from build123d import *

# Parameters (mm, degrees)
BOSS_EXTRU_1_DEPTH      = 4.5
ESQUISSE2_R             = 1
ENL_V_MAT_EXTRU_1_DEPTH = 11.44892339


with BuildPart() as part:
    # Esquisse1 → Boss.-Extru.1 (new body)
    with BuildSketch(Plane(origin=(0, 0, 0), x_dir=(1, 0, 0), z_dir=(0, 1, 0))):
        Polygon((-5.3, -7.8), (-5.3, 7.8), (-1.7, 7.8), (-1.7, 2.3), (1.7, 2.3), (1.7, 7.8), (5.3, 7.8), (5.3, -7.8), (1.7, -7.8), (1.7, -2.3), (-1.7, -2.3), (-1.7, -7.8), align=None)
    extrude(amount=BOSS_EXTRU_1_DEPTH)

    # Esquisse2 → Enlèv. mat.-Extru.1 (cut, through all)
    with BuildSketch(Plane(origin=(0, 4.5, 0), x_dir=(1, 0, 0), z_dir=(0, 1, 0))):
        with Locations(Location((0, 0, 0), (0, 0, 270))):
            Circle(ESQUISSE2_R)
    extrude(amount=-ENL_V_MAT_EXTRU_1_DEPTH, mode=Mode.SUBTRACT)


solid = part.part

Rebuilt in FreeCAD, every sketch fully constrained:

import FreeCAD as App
import Part
import Sketcher

V = App.Vector

doc = App.newDocument("Part")
body = doc.addObject("PartDesign::Body", "Body")

# Sketch on XZ plane
sketch1 = doc.addObject("Sketcher::SketchObject", "Sketch")
body.addObject(sketch1)
sketch1.AttachmentSupport = (doc.XZ_Plane, [""])
sketch1.MapMode = "FlatFace"
sketch1.addGeometry([
    Part.LineSegment(V(-5.3, -7.8, 0), V(-5.3, 7.8, 0)),  # 0
    Part.LineSegment(V(-5.3, 7.8, 0), V(-1.7, 7.8, 0)),  # 1
    Part.LineSegment(V(-1.7, 7.8, 0), V(-1.7, 2.3, 0)),  # 2
    Part.LineSegment(V(-1.7, 2.3, 0), V(1.7, 2.3, 0)),  # 3
    Part.LineSegment(V(1.7, 2.3, 0), V(1.7, 7.8, 0)),  # 4
    Part.LineSegment(V(1.7, 7.8, 0), V(5.3, 7.8, 0)),  # 5
    Part.LineSegment(V(5.3, 7.8, 0), V(5.3, -7.8, 0)),  # 6
    Part.LineSegment(V(5.3, -7.8, 0), V(1.7, -7.8, 0)),  # 7
    Part.LineSegment(V(1.7, -7.8, 0), V(1.7, -2.3, 0)),  # 8
    Part.LineSegment(V(1.7, -2.3, 0), V(-1.7, -2.3, 0)),  # 9
    Part.LineSegment(V(-1.7, -2.3, 0), V(-1.7, -7.8, 0)),  # 10
    Part.LineSegment(V(-1.7, -7.8, 0), V(-5.3, -7.8, 0)),  # 11
], False)
sketch1.addConstraint([
    Sketcher.Constraint("Coincident", 0, 2, 1, 1),
    Sketcher.Constraint("Coincident", 1, 2, 2, 1),
    Sketcher.Constraint("Coincident", 2, 2, 3, 1),
    Sketcher.Constraint("Coincident", 3, 2, 4, 1),
    Sketcher.Constraint("Coincident", 4, 2, 5, 1),
    Sketcher.Constraint("Coincident", 5, 2, 6, 1),
    Sketcher.Constraint("Coincident", 6, 2, 7, 1),
    Sketcher.Constraint("Coincident", 7, 2, 8, 1),
    Sketcher.Constraint("Coincident", 8, 2, 9, 1),
    Sketcher.Constraint("Coincident", 9, 2, 10, 1),
    Sketcher.Constraint("Coincident", 10, 2, 11, 1),
    Sketcher.Constraint("Coincident", 11, 2, 0, 1),
    Sketcher.Constraint("Vertical", 0),
    Sketcher.Constraint("Horizontal", 1),
    Sketcher.Constraint("Vertical", 2),
    Sketcher.Constraint("Horizontal", 3),
    Sketcher.Constraint("Vertical", 4),
    Sketcher.Constraint("Horizontal", 5),
    Sketcher.Constraint("Vertical", 6),
    Sketcher.Constraint("Horizontal", 7),
    Sketcher.Constraint("Vertical", 8),
    Sketcher.Constraint("Horizontal", 9),
    Sketcher.Constraint("Vertical", 10),
    Sketcher.Constraint("Horizontal", 11),
    Sketcher.Constraint("Symmetric", 0, 2, 6, 2, -1, 1),
    Sketcher.Constraint("Symmetric", 2, 2, 8, 2, -1, 1),
    Sketcher.Constraint("Symmetric", 4, 2, 10, 2, -1, 1),
    Sketcher.Constraint("Symmetric", 1, 2, 4, 2, -2),
    Sketcher.Constraint("DistanceX", 1, 1, 1, 2, 3.6),
    Sketcher.Constraint("DistanceX", 3, 1, 3, 2, 3.4),
    Sketcher.Constraint("DistanceY", 0, 1, 0, 2, 15.6),
    Sketcher.Constraint("DistanceY", 2, 2, 2, 1, 5.5),
])
pad1 = doc.addObject("PartDesign::Pad", "Pad")
body.addObject(pad1)
pad1.Profile = sketch1
pad1.Length = 4.5
pad1.Reversed = True

# Sketch on XZ plane
sketch2 = doc.addObject("Sketcher::SketchObject", "Sketch001")
body.addObject(sketch2)
sketch2.AttachmentSupport = (doc.XZ_Plane, [""])
sketch2.MapMode = "FlatFace"
sketch2.AttachmentOffset = App.Placement(V(0, 0, -4.5), App.Rotation())
sketch2.addGeometry(Part.Circle(V(0, 0, 0), V(0, 0, 1), 1), False)
sketch2.addConstraint([
    Sketcher.Constraint("Coincident", 0, 3, -1, 1),
    Sketcher.Constraint("Diameter", 0, 2.0),
])
pocket1 = doc.addObject("PartDesign::Pocket", "Pocket")
body.addObject(pocket1)
pocket1.Profile = sketch2
pocket1.Type = "ThroughAll"
pocket1.Reversed = True

doc.recompute()
